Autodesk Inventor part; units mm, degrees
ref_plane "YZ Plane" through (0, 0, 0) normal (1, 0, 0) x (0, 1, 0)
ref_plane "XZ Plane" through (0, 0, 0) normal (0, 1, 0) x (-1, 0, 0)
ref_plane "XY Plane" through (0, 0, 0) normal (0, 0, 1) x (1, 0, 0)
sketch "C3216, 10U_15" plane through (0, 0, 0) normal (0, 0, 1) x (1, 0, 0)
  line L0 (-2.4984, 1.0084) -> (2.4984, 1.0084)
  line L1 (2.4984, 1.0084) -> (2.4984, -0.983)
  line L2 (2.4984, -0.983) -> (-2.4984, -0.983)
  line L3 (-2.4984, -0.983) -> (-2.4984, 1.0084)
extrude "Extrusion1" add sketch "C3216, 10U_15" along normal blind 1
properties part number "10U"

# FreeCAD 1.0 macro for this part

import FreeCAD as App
import Part
import Sketcher


def add_polygon(sketch, points):
    """Adds a closed chain of lines whose ends are joined by coincident constraints."""
    first, n = sketch.GeometryCount, len(points)
    for a, b in zip(points, points[1:] + points[:1]):
        sketch.addGeometry(Part.LineSegment(App.Vector(*a, 0), App.Vector(*b, 0)), False)
    for i in range(n):
        sketch.addConstraint(Sketcher.Constraint("Coincident", first + i, 2, first + (i + 1) % n, 1))

doc = App.newDocument("Part")
body = doc.addObject("PartDesign::Body", "Body")

# Sketch on XY plane
sketch1 = body.newObject("Sketcher::SketchObject", "Sketch")
sketch1.AttachmentSupport = (doc.getObject("XY_Plane"), [""])
sketch1.MapMode = "FlatFace"
add_polygon(sketch1, [(2.4984, 1.0084), (-2.4984, 1.0084), (-2.4984, -0.983), (2.4984, -0.983)])  # lines 0-3
sketch1.addConstraint([
    Sketcher.Constraint("Horizontal", 0),
    Sketcher.Constraint("Vertical", 1),
    Sketcher.Constraint("Horizontal", 2),
    Sketcher.Constraint("Vertical", 3),
    Sketcher.Constraint("DistanceX", 0, 2, 0, 1, 4.9968),
    Sketcher.Constraint("DistanceY", 1, 2, 1, 1, 1.9914),
    Sketcher.Constraint("DistanceY", 1, 2, -1, 1, 0.983),
    Sketcher.Constraint("DistanceX", 0, 2, -1, 1, 2.4984),
])
pad1 = body.newObject("PartDesign::Pad", "Pad")
pad1.Profile = sketch1
pad1.Length = 1

doc.recompute()
